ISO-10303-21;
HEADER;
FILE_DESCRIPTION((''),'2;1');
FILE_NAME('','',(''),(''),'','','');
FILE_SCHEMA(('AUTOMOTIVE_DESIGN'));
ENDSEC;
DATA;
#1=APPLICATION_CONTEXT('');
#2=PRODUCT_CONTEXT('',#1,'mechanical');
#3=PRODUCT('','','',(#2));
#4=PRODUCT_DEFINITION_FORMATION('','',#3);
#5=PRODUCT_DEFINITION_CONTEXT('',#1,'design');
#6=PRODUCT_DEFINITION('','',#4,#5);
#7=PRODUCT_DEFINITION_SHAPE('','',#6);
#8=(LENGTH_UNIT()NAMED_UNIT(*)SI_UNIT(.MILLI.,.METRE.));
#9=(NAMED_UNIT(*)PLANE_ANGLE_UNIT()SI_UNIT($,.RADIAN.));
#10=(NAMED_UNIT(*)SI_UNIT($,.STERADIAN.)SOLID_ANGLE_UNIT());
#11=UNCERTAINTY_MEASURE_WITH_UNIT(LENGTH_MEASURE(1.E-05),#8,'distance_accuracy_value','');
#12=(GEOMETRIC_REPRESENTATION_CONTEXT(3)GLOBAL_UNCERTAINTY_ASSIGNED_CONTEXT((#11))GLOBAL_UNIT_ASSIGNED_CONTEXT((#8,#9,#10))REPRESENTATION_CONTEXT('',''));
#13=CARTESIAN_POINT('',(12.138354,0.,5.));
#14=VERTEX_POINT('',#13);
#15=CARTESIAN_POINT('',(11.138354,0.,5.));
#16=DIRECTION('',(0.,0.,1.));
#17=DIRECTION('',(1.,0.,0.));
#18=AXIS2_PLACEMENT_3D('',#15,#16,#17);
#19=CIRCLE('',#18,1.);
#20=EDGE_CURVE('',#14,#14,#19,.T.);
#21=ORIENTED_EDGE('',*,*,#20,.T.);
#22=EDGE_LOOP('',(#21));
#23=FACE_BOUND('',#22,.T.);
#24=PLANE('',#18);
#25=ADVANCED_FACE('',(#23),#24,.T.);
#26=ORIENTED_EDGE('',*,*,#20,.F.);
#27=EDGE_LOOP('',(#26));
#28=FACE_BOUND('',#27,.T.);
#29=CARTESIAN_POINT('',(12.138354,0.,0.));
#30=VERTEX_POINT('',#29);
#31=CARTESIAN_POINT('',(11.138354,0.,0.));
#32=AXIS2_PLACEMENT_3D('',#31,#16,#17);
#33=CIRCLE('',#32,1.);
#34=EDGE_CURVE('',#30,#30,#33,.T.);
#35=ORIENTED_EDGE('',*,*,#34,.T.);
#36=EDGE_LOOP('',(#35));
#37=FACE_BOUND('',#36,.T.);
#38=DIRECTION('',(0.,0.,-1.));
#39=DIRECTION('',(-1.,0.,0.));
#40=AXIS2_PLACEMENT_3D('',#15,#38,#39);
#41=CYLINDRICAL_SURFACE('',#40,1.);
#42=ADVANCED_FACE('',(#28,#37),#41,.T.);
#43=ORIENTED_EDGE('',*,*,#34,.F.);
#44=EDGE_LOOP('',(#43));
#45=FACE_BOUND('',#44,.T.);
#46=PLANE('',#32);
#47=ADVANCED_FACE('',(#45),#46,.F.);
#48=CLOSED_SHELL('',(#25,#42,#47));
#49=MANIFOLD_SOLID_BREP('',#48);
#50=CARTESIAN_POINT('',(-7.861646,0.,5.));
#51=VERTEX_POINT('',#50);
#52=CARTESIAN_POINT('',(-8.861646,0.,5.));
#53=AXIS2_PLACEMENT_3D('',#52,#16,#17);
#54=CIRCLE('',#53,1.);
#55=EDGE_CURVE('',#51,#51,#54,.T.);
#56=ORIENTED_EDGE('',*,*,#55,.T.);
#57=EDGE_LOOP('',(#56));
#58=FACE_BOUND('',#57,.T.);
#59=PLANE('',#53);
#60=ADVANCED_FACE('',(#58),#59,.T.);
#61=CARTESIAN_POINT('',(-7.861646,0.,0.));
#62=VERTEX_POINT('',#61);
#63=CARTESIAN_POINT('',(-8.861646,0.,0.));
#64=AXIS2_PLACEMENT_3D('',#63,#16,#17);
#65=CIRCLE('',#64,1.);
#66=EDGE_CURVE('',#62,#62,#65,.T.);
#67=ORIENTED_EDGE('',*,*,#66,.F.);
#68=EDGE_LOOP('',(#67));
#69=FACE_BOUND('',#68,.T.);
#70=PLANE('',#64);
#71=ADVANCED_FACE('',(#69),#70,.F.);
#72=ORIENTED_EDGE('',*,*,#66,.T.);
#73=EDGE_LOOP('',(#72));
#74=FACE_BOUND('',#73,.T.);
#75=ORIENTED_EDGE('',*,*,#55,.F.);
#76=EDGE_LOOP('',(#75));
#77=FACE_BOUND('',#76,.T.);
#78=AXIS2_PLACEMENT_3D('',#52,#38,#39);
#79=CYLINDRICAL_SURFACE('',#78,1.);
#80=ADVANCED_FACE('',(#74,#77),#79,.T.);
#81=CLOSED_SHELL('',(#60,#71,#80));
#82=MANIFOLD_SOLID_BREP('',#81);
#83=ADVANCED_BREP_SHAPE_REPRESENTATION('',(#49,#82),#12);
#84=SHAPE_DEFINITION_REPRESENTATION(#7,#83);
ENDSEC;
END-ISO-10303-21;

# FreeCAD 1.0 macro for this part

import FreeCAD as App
import Part
import Sketcher
from FreeCAD import Vector
Q = App.Units.Quantity

doc = App.newDocument("Part")
params = doc.addObject("Spreadsheet::Sheet", "Params")
for row, (alias, value) in enumerate([
    ("sketch1_diameter", "2 mm"),
    ("pad1_length", "5 mm"),
    ("sketch2_diameter", "2 mm"),
    ("pad2_length", "5 mm"),
], start=1):
    params.set(f"A{row}", alias)
    params.set(f"B{row}", "=" + value)
    params.setAlias(f"B{row}", alias)

body = doc.addObject("PartDesign::Body", "Body")

sketch1 = body.newObject("Sketcher::SketchObject", "Sketch")
sketch1.AttachmentSupport = (doc.getObject("XY_Plane"), [""])
sketch1.MapMode = "FlatFace"
sketch1.addGeometry(Part.Circle(Vector(-8.9, 0, 0), Vector(0, 0, 1), 1), False)
sketch1.addConstraint([
    Sketcher.Constraint("PointOnObject", 0, 3, -1),
    Sketcher.Constraint("Diameter", 0, Q("2 mm")),
    Sketcher.Constraint("DistanceX", 0, 3, -1, 1, Q("8.861646 mm")),
])
sketch1.setExpression("Constraints[1]", "Params.sketch1_diameter")
pad1 = body.newObject("PartDesign::Pad", "Pad")
pad1.Profile = sketch1
pad1.setExpression("Length", "Params.pad1_length")
body2 = doc.addObject("PartDesign::Body", "Body001")

sketch2 = body2.newObject("Sketcher::SketchObject", "Sketch001")
sketch2.AttachmentSupport = (doc.getObject("XY_Plane001"), [""])
sketch2.MapMode = "FlatFace"
sketch2.addGeometry(Part.Circle(Vector(11.1, 0, 0), Vector(0, 0, 1), 1), False)
sketch2.addConstraint([
    Sketcher.Constraint("PointOnObject", 0, 3, -1),
    Sketcher.Constraint("Diameter", 0, Q("2 mm")),
    Sketcher.Constraint("DistanceX", -1, 1, 0, 3, Q("11.138354 mm")),
])
sketch2.setExpression("Constraints[1]", "Params.sketch2_diameter")
pad2 = body2.newObject("PartDesign::Pad", "Pad001")
pad2.Profile = sketch2
pad2.setExpression("Length", "Params.pad2_length")

doc.recompute()
